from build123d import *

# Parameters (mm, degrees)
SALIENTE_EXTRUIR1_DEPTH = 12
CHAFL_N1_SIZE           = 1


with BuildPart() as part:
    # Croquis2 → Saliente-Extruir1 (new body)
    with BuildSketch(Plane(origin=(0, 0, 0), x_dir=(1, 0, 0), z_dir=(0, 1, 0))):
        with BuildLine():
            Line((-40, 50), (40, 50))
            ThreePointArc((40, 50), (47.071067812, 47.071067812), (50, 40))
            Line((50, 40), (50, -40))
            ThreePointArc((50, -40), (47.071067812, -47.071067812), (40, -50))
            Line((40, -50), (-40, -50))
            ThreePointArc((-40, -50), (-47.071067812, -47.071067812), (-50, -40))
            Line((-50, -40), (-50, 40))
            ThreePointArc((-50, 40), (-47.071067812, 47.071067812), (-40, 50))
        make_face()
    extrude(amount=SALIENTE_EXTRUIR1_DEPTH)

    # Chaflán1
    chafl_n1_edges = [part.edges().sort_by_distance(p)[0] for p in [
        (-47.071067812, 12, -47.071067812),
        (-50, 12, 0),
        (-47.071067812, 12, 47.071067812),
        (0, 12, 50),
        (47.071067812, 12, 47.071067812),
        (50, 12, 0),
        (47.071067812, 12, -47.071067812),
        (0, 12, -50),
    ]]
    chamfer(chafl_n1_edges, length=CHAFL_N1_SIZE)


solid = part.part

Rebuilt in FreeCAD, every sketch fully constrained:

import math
import FreeCAD as App
import Part
import Sketcher

V = App.Vector
Q = App.Units.Quantity


def edges_at(feature, points):
    """Names of the edges that pass closest to the given points."""
    edges = feature.Shape.Edges
    near = lambda p: min(range(len(edges)), key=lambda i: edges[i].distToShape(Part.Vertex(*p))[0])
    return sorted({f"Edge{near(p) + 1}" for p in points})

doc = App.newDocument("Part")
params = doc.addObject("Spreadsheet::Sheet", "Params")
for row, (alias, value) in enumerate([
    ("sketch1_radius", "10 mm"),
    ("sketch1_width", "80 mm"),
    ("pad1_length", "12 mm"),
    ("chamfer_size", "1 mm"),
], start=1):
    params.set(f"A{row}", alias)
    params.set(f"B{row}", "=" + value)
    params.setAlias(f"B{row}", alias)

body = doc.addObject("PartDesign::Body", "Body")

sketch1 = body.newObject("Sketcher::SketchObject", "Sketch")
sketch1.AttachmentSupport = (doc.getObject("XZ_Plane"), [""])
sketch1.MapMode = "FlatFace"
sketch1.addGeometry(Part.LineSegment(V(40, -50, 0), V(-40, -50, 0)), False)
sketch1.addGeometry(Part.ArcOfCircle(Part.Circle(V(-40, -40, 0), V(0, 0, 1), 10), math.radians(180), math.radians(270)), False)
sketch1.addGeometry(Part.LineSegment(V(-50, -40, 0), V(-50, 40, 0)), False)
sketch1.addGeometry(Part.ArcOfCircle(Part.Circle(V(-40, 40, 0), V(0, 0, 1), 10), math.radians(90), math.radians(180)), False)
sketch1.addGeometry(Part.LineSegment(V(-40, 50, 0), V(40, 50, 0)), False)
sketch1.addGeometry(Part.ArcOfCircle(Part.Circle(V(40, 40, 0), V(0, 0, 1), 10), math.radians(0), math.radians(90)), False)
sketch1.addGeometry(Part.LineSegment(V(50, 40, 0), V(50, -40, 0)), False)
sketch1.addGeometry(Part.ArcOfCircle(Part.Circle(V(40, -40, 0), V(0, 0, 1), 10), math.radians(-90), math.radians(0)), False)
sketch1.addConstraint(Sketcher.Constraint("Tangent", 0, 2, 1, 2))
sketch1.addConstraint(Sketcher.Constraint("Tangent", 1, 1, 2, 1))
sketch1.addConstraint(Sketcher.Constraint("Tangent", 2, 2, 3, 2))
sketch1.addConstraint(Sketcher.Constraint("Tangent", 3, 1, 4, 1))
sketch1.addConstraint(Sketcher.Constraint("Tangent", 4, 2, 5, 2))
sketch1.addConstraint(Sketcher.Constraint("Tangent", 5, 1, 6, 1))
sketch1.addConstraint(Sketcher.Constraint("Tangent", 6, 2, 7, 2))
sketch1.addConstraint(Sketcher.Constraint("Tangent", 7, 1, 0, 1))
sketch1.addConstraint(Sketcher.Constraint("Horizontal", 0))
sketch1.addConstraint(Sketcher.Constraint("Vertical", 2))
sketch1.addConstraint(Sketcher.Constraint("Horizontal", 4))
sketch1.addConstraint(Sketcher.Constraint("Vertical", 6))
sketch1.addConstraint(Sketcher.Constraint("Equal", 1, 3))
sketch1.addConstraint(Sketcher.Constraint("Equal", 3, 5))
sketch1.addConstraint(Sketcher.Constraint("Equal", 5, 7))
sketch1.addConstraint(Sketcher.Constraint("Symmetric", 1, 3, 5, 3, -1, 1))
sketch1.addConstraint(Sketcher.Constraint("Equal", 4, 2))
sketch1.addConstraint(Sketcher.Constraint("Radius", 1, Q("10 mm")))
sketch1.addConstraint(Sketcher.Constraint("DistanceX", 0, 2, 0, 1, Q("80 mm")))
sketch1.setExpression("Constraints[17]", "Params.sketch1_radius")
sketch1.setExpression("Constraints[18]", "Params.sketch1_width")
pad1 = body.newObject("PartDesign::Pad", "Pad")
pad1.Profile = sketch1
pad1.setExpression("Length", "Params.pad1_length")
pad1.Reversed = True
doc.recompute()

chamfer = body.newObject("PartDesign::Chamfer", "Chamfer")
chamfer.Base = (pad1, edges_at(pad1, [
    (-47.071, 12, -47.071),
    (-50, 12, 0),
    (-47.071, 12, 47.071),
    (0, 12, 50),
    (47.071, 12, 47.071),
    (50, 12, 0),
    (47.071, 12, -47.071),
    (0, 12, -50),
]))
chamfer.setExpression("Size", "Params.chamfer_size")

doc.recompute()
